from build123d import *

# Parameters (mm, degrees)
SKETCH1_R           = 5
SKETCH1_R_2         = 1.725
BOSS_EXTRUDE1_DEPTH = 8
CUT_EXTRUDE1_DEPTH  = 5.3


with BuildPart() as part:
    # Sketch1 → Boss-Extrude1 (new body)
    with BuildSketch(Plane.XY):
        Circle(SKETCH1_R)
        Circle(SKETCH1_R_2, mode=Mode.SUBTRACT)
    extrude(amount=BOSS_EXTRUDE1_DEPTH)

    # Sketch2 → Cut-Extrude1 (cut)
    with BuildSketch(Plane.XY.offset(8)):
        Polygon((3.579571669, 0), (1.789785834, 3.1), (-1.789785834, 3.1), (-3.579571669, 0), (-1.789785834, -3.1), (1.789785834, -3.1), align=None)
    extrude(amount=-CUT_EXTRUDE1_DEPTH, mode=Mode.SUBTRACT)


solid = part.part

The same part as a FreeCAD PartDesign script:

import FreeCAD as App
import Part
import Sketcher
from FreeCAD import Vector
Q = App.Units.Quantity

doc = App.newDocument("Part")
body = doc.addObject("PartDesign::Body", "Body")

sketch1 = body.newObject("Sketcher::SketchObject", "Sketch")
sketch1.AttachmentSupport = (doc.getObject("XY_Plane"), [""])
sketch1.MapMode = "FlatFace"
sketch1.addGeometry([
    Part.Circle(Vector(0, 0, 0), Vector(0, 0, 1), 5),
    Part.Circle(Vector(0, 0, 0), Vector(0, 0, 1), 1.7),
], False)
sketch1.addConstraint([
    Sketcher.Constraint("Coincident", 0, 3, -1, 1),
    Sketcher.Constraint("Coincident", 1, 3, -1, 1),
    Sketcher.Constraint("Diameter", 0, Q("10 mm")),
    Sketcher.Constraint("Diameter", 1, Q("3.45 mm")),
])
pad1 = body.newObject("PartDesign::Pad", "Pad")
pad1.Profile = sketch1
pad1.Length = 8

sketch2 = body.newObject("Sketcher::SketchObject", "Sketch001")
sketch2.AttachmentSupport = (doc.getObject("XY_Plane"), [""])
sketch2.MapMode = "FlatFace"
sketch2.AttachmentOffset = App.Placement(Vector(0, 0, 8), App.Rotation())
sketch2.addGeometry([
    Part.LineSegment(Vector(3.6, 0, 0), Vector(1.8, 3.1, 0)),
    Part.LineSegment(Vector(1.8, 3.1, 0), Vector(-1.8, 3.1, 0)),
    Part.LineSegment(Vector(-1.8, 3.1, 0), Vector(-3.6, 0, 0)),
    Part.LineSegment(Vector(-3.6, 0, 0), Vector(-1.8, -3.1, 0)),
    Part.LineSegment(Vector(-1.8, -3.1, 0), Vector(1.8, -3.1, 0)),
    Part.LineSegment(Vector(1.8, -3.1, 0), Vector(3.6, 0, 0)),
], False)
sketch2.addConstraint([
    Sketcher.Constraint("Coincident", 0, 2, 1, 1),
    Sketcher.Constraint("Coincident", 1, 2, 2, 1),
    Sketcher.Constraint("Coincident", 2, 2, 3, 1),
    Sketcher.Constraint("Coincident", 3, 2, 4, 1),
    Sketcher.Constraint("Coincident", 4, 2, 5, 1),
    Sketcher.Constraint("Coincident", 5, 2, 0, 1),
    Sketcher.Constraint("Horizontal", 1),
    Sketcher.Constraint("Horizontal", 4),
    Sketcher.Constraint("Symmetric", 0, 2, 3, 2, -1, 1),
    Sketcher.Constraint("Symmetric", 2, 2, 5, 2, -1, 1),
    Sketcher.Constraint("PointOnObject", 2, 2, -1),
    Sketcher.Constraint("Parallel", 2, 5),
    Sketcher.Constraint("Vertical", 1, 2, 3, 2),
    Sketcher.Constraint("Angle", 0, Q("120 deg")),
    Sketcher.Constraint("DistanceY", -1, 1, 0, 2, Q("3.1 mm")),
    Sketcher.Constraint("DistanceX", 1, 2, 1, 1, Q("3.579572 mm")),
])
pocket1 = body.newObject("PartDesign::Pocket", "Pocket")
pocket1.Profile = sketch2
pocket1.Length = 5.3

doc.recompute()
